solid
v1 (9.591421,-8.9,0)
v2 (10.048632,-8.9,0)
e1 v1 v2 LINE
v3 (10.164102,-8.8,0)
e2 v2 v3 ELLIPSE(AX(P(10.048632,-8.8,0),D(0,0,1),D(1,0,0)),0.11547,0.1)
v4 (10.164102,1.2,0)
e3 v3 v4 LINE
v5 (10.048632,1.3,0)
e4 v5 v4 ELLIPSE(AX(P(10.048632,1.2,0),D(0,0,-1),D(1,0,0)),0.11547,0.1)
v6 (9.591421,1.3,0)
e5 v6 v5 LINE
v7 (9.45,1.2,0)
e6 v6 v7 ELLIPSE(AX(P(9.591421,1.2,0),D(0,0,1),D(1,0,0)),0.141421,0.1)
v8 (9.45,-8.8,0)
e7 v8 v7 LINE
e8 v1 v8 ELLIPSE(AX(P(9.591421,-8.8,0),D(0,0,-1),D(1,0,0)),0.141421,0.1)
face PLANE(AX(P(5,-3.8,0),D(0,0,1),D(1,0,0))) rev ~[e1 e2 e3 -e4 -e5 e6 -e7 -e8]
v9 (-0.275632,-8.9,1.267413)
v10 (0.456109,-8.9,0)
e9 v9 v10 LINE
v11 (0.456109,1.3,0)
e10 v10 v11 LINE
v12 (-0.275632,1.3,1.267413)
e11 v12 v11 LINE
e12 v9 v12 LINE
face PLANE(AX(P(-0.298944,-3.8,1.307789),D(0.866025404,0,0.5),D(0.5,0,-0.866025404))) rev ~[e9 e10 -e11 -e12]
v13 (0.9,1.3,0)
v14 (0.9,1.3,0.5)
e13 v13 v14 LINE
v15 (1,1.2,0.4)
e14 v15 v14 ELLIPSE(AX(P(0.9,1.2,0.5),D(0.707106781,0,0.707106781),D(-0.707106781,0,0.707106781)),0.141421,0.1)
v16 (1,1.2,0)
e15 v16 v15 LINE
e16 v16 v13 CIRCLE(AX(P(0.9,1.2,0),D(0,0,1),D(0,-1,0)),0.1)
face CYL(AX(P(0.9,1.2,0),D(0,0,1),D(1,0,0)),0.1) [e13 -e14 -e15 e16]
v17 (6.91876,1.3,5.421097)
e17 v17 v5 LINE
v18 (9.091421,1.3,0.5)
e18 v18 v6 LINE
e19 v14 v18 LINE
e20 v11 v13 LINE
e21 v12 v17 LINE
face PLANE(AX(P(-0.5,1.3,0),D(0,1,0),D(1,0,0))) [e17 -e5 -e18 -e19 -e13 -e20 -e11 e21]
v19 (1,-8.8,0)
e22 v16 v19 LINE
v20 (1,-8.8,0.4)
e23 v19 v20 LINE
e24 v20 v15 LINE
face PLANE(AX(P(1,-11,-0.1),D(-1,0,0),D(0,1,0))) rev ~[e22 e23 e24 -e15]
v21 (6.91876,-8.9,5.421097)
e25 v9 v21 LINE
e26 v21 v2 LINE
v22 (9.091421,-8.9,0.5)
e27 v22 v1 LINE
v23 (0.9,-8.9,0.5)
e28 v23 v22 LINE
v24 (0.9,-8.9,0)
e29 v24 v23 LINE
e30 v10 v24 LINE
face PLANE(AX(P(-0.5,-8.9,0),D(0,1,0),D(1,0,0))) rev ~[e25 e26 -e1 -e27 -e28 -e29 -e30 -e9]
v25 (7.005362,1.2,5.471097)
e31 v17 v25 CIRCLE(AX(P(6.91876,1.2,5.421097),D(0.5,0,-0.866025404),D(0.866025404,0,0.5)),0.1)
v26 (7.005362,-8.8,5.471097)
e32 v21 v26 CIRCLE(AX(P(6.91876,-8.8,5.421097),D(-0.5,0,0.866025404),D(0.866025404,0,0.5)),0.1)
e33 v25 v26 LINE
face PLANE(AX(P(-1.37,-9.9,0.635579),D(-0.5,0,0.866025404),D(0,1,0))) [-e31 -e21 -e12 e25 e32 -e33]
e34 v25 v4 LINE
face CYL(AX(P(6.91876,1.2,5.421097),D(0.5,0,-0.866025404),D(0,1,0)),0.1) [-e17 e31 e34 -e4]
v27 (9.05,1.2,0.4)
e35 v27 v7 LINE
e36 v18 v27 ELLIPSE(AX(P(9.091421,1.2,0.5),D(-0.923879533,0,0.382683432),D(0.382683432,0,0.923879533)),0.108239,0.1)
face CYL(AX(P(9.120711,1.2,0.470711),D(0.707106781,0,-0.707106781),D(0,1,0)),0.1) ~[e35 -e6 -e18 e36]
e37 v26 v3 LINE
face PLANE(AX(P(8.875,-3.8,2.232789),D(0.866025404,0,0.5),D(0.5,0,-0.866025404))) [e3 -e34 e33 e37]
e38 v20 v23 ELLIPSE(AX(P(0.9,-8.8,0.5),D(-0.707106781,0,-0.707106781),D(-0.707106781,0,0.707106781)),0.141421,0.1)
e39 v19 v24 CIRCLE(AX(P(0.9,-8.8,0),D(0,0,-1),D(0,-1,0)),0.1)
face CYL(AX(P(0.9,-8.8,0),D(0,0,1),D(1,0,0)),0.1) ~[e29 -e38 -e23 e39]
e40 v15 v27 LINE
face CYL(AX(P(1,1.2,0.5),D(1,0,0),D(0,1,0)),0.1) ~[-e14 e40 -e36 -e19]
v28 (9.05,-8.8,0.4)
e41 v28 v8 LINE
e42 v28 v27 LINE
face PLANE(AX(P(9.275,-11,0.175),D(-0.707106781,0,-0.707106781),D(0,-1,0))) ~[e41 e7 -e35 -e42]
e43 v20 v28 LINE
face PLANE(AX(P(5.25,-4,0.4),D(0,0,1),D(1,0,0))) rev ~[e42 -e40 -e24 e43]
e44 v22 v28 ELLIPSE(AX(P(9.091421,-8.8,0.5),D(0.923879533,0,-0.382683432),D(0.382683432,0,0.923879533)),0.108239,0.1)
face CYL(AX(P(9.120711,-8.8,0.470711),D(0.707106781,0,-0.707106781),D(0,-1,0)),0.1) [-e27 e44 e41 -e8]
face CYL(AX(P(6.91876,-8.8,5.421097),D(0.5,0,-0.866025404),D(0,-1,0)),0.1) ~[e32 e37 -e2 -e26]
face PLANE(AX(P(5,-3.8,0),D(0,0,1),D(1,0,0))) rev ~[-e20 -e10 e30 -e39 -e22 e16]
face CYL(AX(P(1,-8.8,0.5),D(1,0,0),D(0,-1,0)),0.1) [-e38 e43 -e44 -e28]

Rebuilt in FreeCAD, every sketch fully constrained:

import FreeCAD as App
import Part
import Sketcher

V = App.Vector
Q = App.Units.Quantity


def edges_at(feature, points):
    """Names of the edges that pass closest to the given points."""
    edges = feature.Shape.Edges
    near = lambda p: min(range(len(edges)), key=lambda i: edges[i].distToShape(Part.Vertex(*p))[0])
    return sorted({f"Edge{near(p) + 1}" for p in points})

doc = App.newDocument("Part")
body = doc.addObject("PartDesign::Body", "Body")

# Sketch on XY plane
sketch1 = doc.addObject("Sketcher::SketchObject", "Sketch")
body.addObject(sketch1)
sketch1.AttachmentSupport = (doc.XY_Plane, [""])
sketch1.MapMode = "FlatFace"
sketch1.AttachmentOffset = App.Placement(V(0, 0, -0.1), App.Rotation())
sketch1.addGeometry([
    Part.LineSegment(V(1, 3, 0), V(1, -11, 0)),
    Part.LineSegment(V(1, -11, 0), V(9.5, -11, 0)),
    Part.LineSegment(V(9.5, -11, 0), V(9.5, 3, 0)),
    Part.LineSegment(V(9.5, 3, 0), V(1, 3, 0)),
], False)
sketch1.addConstraint([
    Sketcher.Constraint("Coincident", 0, 2, 1, 1),
    Sketcher.Constraint("Coincident", 1, 2, 2, 1),
    Sketcher.Constraint("Coincident", 2, 2, 3, 1),
    Sketcher.Constraint("Coincident", 3, 2, 0, 1),
    Sketcher.Constraint("Vertical", 0),
    Sketcher.Constraint("Horizontal", 1),
    Sketcher.Constraint("Vertical", 2),
    Sketcher.Constraint("Horizontal", 3),
    Sketcher.Constraint("DistanceY", 0, 2, 0, 1, Q("14 mm")),
    Sketcher.Constraint("DistanceX", 1, 1, 1, 2, Q("8.5 mm")),
    Sketcher.Constraint("DistanceX", -1, 1, 0, 2, Q("1 mm")),
    Sketcher.Constraint("DistanceY", 0, 2, -1, 1, Q("11 mm")),
])
pad1 = doc.addObject("PartDesign::Pad", "Pad")
body.addObject(pad1)
pad1.Profile = sketch1
pad1.Length = 0.5
doc.recompute()

chamfer = doc.addObject("PartDesign::Chamfer", "Chamfer")
body.addObject(chamfer)
chamfer.Base = (pad1, edges_at(pad1, [(9.5, -4, 0.4)]))
chamfer.Size = 0.45
body2 = doc.addObject("PartDesign::Body", "Body001")

# Sketch on XY plane
sketch2 = doc.addObject("Sketcher::SketchObject", "Sketch001")
body2.addObject(sketch2)
sketch2.AttachmentSupport = (doc.getObject("XY_Plane001"), [""])
sketch2.MapMode = "FlatFace"
sketch2.addGeometry([
    Part.LineSegment(V(0, 10.2, 0), V(0, 0, 0)),
    Part.LineSegment(V(0, 0, 0), V(8.7, 0, 0)),
    Part.LineSegment(V(8.7, 0, 0), V(8.7, 10.2, 0)),
    Part.LineSegment(V(8.7, 10.2, 0), V(0, 10.2, 0)),
], False)
sketch2.addConstraint([
    Sketcher.Constraint("Coincident", 0, 2, 1, 1),
    Sketcher.Constraint("Coincident", 1, 2, 2, 1),
    Sketcher.Constraint("Coincident", 2, 2, 3, 1),
    Sketcher.Constraint("Coincident", 3, 2, 0, 1),
    Sketcher.Constraint("Vertical", 0),
    Sketcher.Constraint("Horizontal", 1),
    Sketcher.Constraint("Vertical", 2),
    Sketcher.Constraint("Horizontal", 3),
    Sketcher.Constraint("Coincident", 0, 2, -1, 1),
    Sketcher.Constraint("DistanceX", 1, 1, 1, 2, Q("8.7 mm")),
    Sketcher.Constraint("DistanceY", 0, 2, 0, 1, Q("10.2 mm")),
])
pad2 = doc.addObject("PartDesign::Pad", "Pad001")
body2.addObject(pad2)
pad2.Profile = sketch2
pad2.Length = 6.15
body3 = doc.addObject("PartDesign::Body", "Body002")
doc.recompute()

body2.Placement = App.Placement(V(0, 0, 0), App.Rotation(V(0, 1, 0), 60))
boolean = doc.addObject("PartDesign::Boolean", "Boolean")
body3.addObject(boolean)
boolean.Type = "Fuse"
boolean.addObjects([body2])
body4 = doc.addObject("PartDesign::Body", "Body003")
doc.recompute()

body3.Placement = App.Placement(V(-7.8, -8.9, 2), App.Rotation(V(0, 0, 1), 0))
boolean2 = doc.addObject("PartDesign::Boolean", "Boolean001")
body4.addObject(boolean2)
boolean2.Type = "Fuse"
boolean2.addObjects([body3])
body5 = doc.addObject("PartDesign::Body", "Body004")

# Sketch on XY plane
sketch3 = doc.addObject("Sketcher::SketchObject", "Sketch002")
body5.addObject(sketch3)
sketch3.AttachmentSupport = (doc.getObject("XY_Plane004"), [""])
sketch3.MapMode = "FlatFace"
sketch3.addGeometry([
    Part.LineSegment(V(0, 12.2, 0), V(0, 0, 0)),
    Part.LineSegment(V(0, 0, 0), V(8.7, 0, 0)),
    Part.LineSegment(V(8.7, 0, 0), V(8.7, 12.2, 0)),
    Part.LineSegment(V(8.7, 12.2, 0), V(0, 12.2, 0)),
], False)
sketch3.addConstraint([
    Sketcher.Constraint("Coincident", 0, 2, 1, 1),
    Sketcher.Constraint("Coincident", 1, 2, 2, 1),
    Sketcher.Constraint("Coincident", 2, 2, 3, 1),
    Sketcher.Constraint("Coincident", 3, 2, 0, 1),
    Sketcher.Constraint("Vertical", 0),
    Sketcher.Constraint("Horizontal", 1),
    Sketcher.Constraint("Vertical", 2),
    Sketcher.Constraint("Horizontal", 3),
    Sketcher.Constraint("Coincident", 0, 2, -1, 1),
    Sketcher.Constraint("DistanceX", 1, 1, 1, 2, Q("8.7 mm")),
    Sketcher.Constraint("DistanceY", 0, 2, 0, 1, Q("12.2 mm")),
])
pad3 = doc.addObject("PartDesign::Pad", "Pad002")
body5.addObject(pad3)
pad3.Profile = sketch3
pad3.Length = 11.15
body6 = doc.addObject("PartDesign::Body", "Body005")
doc.recompute()

body5.Placement = App.Placement(V(0, 0, 0), App.Rotation(V(0, 1, 0), 60))
boolean3 = doc.addObject("PartDesign::Boolean", "Boolean002")
body6.addObject(boolean3)
boolean3.Type = "Fuse"
boolean3.addObjects([body5])
body7 = doc.addObject("PartDesign::Body", "Body006")
doc.recompute()

body6.Placement = App.Placement(V(-5.72, -9.9, 8.17), App.Rotation(V(0, 0, 1), 0))
boolean4 = doc.addObject("PartDesign::Boolean", "Boolean003")
body7.addObject(boolean4)
boolean4.Type = "Fuse"
boolean4.addObjects([body6])
body8 = doc.addObject("PartDesign::Body", "Body007")

# Sketch on XY plane
sketch4 = doc.addObject("Sketcher::SketchObject", "Sketch003")
body8.addObject(sketch4)
sketch4.AttachmentSupport = (doc.getObject("XY_Plane007"), [""])
sketch4.MapMode = "FlatFace"
sketch4.addGeometry([
    Part.LineSegment(V(0, 10.2, 0), V(0, 0, 0)),
    Part.LineSegment(V(0, 0, 0), V(8.7, 0, 0)),
    Part.LineSegment(V(8.7, 0, 0), V(8.7, 10.2, 0)),
    Part.LineSegment(V(8.7, 10.2, 0), V(0, 10.2, 0)),
], False)
sketch4.addConstraint([
    Sketcher.Constraint("Coincident", 0, 2, 1, 1),
    Sketcher.Constraint("Coincident", 1, 2, 2, 1),
    Sketcher.Constraint("Coincident", 2, 2, 3, 1),
    Sketcher.Constraint("Coincident", 3, 2, 0, 1),
    Sketcher.Constraint("Vertical", 0),
    Sketcher.Constraint("Horizontal", 1),
    Sketcher.Constraint("Vertical", 2),
    Sketcher.Constraint("Horizontal", 3),
    Sketcher.Constraint("Coincident", 0, 2, -1, 1),
    Sketcher.Constraint("DistanceX", 1, 1, 1, 2, Q("8.7 mm")),
    Sketcher.Constraint("DistanceY", 0, 2, 0, 1, Q("10.2 mm")),
])
pad4 = doc.addObject("PartDesign::Pad", "Pad003")
body8.addObject(pad4)
pad4.Profile = sketch4
pad4.Length = 6.15
body9 = doc.addObject("PartDesign::Body", "Body008")
doc.recompute()

body8.Placement = App.Placement(V(0, 0, 0), App.Rotation(V(0, 1, 0), 60))
boolean5 = doc.addObject("PartDesign::Boolean", "Boolean004")
body9.addObject(boolean5)
boolean5.Type = "Fuse"
boolean5.addObjects([body8])
body10 = doc.addObject("PartDesign::Body", "Body009")
doc.recompute()

body9.Placement = App.Placement(V(6.7, -8.9, 6), App.Rotation(V(0, 0, 1), 0))
boolean6 = doc.addObject("PartDesign::Boolean", "Boolean005")
body10.addObject(boolean6)
boolean6.Type = "Fuse"
boolean6.addObjects([body9])
body11 = doc.addObject("PartDesign::Body", "Body010")

# Sketch on XY plane
sketch5 = doc.addObject("Sketcher::SketchObject", "Sketch004")
body11.addObject(sketch5)
sketch5.AttachmentSupport = (doc.getObject("XY_Plane010"), [""])
sketch5.MapMode = "FlatFace"
sketch5.addGeometry([
    Part.LineSegment(V(-0.5, 1.3, 0), V(-0.5, -8.9, 0)),
    Part.LineSegment(V(-0.5, -8.9, 0), V(10.5, -8.9, 0)),
    Part.LineSegment(V(10.5, -8.9, 0), V(10.5, 1.3, 0)),
    Part.LineSegment(V(10.5, 1.3, 0), V(-0.5, 1.3, 0)),
], False)
sketch5.addConstraint([
    Sketcher.Constraint("Coincident", 0, 2, 1, 1),
    Sketcher.Constraint("Coincident", 1, 2, 2, 1),
    Sketcher.Constraint("Coincident", 2, 2, 3, 1),
    Sketcher.Constraint("Coincident", 3, 2, 0, 1),
    Sketcher.Constraint("Vertical", 0),
    Sketcher.Constraint("Horizontal", 1),
    Sketcher.Constraint("Vertical", 2),
    Sketcher.Constraint("Horizontal", 3),
    Sketcher.Constraint("DistanceX", 1, 1, 1, 2, Q("11 mm")),
    Sketcher.Constraint("DistanceY", 0, 2, 0, 1, Q("10.2 mm")),
    Sketcher.Constraint("DistanceX", 0, 2, -1, 1, Q("0.5 mm")),
    Sketcher.Constraint("DistanceY", 0, 2, -1, 1, Q("8.9 mm")),
])
pad5 = doc.addObject("PartDesign::Pad", "Pad004")
body11.addObject(pad5)
pad5.Profile = sketch5
pad5.Length = 6.15
doc.recompute()

boolean7 = doc.addObject("PartDesign::Boolean", "Boolean006")
body11.addObject(boolean7)
boolean7.Type = "Cut"
boolean7.addObjects([body10])
doc.recompute()

boolean8 = doc.addObject("PartDesign::Boolean", "Boolean007")
body11.addObject(boolean8)
boolean8.Type = "Cut"
boolean8.addObjects([body7])
doc.recompute()

boolean9 = doc.addObject("PartDesign::Boolean", "Boolean008")
body11.addObject(boolean9)
boolean9.Type = "Cut"
boolean9.addObjects([body4])
doc.recompute()

boolean10 = doc.addObject("PartDesign::Boolean", "Boolean009")
body11.addObject(boolean10)
boolean10.Type = "Cut"
boolean10.addObjects([body])
doc.recompute()

fillet = doc.addObject("PartDesign::Fillet", "Fillet")
body11.addObject(fillet)
fillet.Base = (boolean10, edges_at(boolean10, [(1, -8.9, 0.2), (5.025, -8.9, 0.4), (9.25, -8.9, 0.2)]))
fillet.Radius = 0.1
doc.recompute()

fillet2 = doc.addObject("PartDesign::Fillet", "Fillet001")
body11.addObject(fillet2)
fillet2.Base = (fillet, edges_at(fillet, [
    (8.585, -8.9, 2.736),
    (8.585, 1.3, 2.736),
    (1, 1.3, 0.2),
    (5.025, 1.3, 0.4),
    (9.25, 1.3, 0.2),
]))
fillet2.Radius = 0.1

doc.recompute()
